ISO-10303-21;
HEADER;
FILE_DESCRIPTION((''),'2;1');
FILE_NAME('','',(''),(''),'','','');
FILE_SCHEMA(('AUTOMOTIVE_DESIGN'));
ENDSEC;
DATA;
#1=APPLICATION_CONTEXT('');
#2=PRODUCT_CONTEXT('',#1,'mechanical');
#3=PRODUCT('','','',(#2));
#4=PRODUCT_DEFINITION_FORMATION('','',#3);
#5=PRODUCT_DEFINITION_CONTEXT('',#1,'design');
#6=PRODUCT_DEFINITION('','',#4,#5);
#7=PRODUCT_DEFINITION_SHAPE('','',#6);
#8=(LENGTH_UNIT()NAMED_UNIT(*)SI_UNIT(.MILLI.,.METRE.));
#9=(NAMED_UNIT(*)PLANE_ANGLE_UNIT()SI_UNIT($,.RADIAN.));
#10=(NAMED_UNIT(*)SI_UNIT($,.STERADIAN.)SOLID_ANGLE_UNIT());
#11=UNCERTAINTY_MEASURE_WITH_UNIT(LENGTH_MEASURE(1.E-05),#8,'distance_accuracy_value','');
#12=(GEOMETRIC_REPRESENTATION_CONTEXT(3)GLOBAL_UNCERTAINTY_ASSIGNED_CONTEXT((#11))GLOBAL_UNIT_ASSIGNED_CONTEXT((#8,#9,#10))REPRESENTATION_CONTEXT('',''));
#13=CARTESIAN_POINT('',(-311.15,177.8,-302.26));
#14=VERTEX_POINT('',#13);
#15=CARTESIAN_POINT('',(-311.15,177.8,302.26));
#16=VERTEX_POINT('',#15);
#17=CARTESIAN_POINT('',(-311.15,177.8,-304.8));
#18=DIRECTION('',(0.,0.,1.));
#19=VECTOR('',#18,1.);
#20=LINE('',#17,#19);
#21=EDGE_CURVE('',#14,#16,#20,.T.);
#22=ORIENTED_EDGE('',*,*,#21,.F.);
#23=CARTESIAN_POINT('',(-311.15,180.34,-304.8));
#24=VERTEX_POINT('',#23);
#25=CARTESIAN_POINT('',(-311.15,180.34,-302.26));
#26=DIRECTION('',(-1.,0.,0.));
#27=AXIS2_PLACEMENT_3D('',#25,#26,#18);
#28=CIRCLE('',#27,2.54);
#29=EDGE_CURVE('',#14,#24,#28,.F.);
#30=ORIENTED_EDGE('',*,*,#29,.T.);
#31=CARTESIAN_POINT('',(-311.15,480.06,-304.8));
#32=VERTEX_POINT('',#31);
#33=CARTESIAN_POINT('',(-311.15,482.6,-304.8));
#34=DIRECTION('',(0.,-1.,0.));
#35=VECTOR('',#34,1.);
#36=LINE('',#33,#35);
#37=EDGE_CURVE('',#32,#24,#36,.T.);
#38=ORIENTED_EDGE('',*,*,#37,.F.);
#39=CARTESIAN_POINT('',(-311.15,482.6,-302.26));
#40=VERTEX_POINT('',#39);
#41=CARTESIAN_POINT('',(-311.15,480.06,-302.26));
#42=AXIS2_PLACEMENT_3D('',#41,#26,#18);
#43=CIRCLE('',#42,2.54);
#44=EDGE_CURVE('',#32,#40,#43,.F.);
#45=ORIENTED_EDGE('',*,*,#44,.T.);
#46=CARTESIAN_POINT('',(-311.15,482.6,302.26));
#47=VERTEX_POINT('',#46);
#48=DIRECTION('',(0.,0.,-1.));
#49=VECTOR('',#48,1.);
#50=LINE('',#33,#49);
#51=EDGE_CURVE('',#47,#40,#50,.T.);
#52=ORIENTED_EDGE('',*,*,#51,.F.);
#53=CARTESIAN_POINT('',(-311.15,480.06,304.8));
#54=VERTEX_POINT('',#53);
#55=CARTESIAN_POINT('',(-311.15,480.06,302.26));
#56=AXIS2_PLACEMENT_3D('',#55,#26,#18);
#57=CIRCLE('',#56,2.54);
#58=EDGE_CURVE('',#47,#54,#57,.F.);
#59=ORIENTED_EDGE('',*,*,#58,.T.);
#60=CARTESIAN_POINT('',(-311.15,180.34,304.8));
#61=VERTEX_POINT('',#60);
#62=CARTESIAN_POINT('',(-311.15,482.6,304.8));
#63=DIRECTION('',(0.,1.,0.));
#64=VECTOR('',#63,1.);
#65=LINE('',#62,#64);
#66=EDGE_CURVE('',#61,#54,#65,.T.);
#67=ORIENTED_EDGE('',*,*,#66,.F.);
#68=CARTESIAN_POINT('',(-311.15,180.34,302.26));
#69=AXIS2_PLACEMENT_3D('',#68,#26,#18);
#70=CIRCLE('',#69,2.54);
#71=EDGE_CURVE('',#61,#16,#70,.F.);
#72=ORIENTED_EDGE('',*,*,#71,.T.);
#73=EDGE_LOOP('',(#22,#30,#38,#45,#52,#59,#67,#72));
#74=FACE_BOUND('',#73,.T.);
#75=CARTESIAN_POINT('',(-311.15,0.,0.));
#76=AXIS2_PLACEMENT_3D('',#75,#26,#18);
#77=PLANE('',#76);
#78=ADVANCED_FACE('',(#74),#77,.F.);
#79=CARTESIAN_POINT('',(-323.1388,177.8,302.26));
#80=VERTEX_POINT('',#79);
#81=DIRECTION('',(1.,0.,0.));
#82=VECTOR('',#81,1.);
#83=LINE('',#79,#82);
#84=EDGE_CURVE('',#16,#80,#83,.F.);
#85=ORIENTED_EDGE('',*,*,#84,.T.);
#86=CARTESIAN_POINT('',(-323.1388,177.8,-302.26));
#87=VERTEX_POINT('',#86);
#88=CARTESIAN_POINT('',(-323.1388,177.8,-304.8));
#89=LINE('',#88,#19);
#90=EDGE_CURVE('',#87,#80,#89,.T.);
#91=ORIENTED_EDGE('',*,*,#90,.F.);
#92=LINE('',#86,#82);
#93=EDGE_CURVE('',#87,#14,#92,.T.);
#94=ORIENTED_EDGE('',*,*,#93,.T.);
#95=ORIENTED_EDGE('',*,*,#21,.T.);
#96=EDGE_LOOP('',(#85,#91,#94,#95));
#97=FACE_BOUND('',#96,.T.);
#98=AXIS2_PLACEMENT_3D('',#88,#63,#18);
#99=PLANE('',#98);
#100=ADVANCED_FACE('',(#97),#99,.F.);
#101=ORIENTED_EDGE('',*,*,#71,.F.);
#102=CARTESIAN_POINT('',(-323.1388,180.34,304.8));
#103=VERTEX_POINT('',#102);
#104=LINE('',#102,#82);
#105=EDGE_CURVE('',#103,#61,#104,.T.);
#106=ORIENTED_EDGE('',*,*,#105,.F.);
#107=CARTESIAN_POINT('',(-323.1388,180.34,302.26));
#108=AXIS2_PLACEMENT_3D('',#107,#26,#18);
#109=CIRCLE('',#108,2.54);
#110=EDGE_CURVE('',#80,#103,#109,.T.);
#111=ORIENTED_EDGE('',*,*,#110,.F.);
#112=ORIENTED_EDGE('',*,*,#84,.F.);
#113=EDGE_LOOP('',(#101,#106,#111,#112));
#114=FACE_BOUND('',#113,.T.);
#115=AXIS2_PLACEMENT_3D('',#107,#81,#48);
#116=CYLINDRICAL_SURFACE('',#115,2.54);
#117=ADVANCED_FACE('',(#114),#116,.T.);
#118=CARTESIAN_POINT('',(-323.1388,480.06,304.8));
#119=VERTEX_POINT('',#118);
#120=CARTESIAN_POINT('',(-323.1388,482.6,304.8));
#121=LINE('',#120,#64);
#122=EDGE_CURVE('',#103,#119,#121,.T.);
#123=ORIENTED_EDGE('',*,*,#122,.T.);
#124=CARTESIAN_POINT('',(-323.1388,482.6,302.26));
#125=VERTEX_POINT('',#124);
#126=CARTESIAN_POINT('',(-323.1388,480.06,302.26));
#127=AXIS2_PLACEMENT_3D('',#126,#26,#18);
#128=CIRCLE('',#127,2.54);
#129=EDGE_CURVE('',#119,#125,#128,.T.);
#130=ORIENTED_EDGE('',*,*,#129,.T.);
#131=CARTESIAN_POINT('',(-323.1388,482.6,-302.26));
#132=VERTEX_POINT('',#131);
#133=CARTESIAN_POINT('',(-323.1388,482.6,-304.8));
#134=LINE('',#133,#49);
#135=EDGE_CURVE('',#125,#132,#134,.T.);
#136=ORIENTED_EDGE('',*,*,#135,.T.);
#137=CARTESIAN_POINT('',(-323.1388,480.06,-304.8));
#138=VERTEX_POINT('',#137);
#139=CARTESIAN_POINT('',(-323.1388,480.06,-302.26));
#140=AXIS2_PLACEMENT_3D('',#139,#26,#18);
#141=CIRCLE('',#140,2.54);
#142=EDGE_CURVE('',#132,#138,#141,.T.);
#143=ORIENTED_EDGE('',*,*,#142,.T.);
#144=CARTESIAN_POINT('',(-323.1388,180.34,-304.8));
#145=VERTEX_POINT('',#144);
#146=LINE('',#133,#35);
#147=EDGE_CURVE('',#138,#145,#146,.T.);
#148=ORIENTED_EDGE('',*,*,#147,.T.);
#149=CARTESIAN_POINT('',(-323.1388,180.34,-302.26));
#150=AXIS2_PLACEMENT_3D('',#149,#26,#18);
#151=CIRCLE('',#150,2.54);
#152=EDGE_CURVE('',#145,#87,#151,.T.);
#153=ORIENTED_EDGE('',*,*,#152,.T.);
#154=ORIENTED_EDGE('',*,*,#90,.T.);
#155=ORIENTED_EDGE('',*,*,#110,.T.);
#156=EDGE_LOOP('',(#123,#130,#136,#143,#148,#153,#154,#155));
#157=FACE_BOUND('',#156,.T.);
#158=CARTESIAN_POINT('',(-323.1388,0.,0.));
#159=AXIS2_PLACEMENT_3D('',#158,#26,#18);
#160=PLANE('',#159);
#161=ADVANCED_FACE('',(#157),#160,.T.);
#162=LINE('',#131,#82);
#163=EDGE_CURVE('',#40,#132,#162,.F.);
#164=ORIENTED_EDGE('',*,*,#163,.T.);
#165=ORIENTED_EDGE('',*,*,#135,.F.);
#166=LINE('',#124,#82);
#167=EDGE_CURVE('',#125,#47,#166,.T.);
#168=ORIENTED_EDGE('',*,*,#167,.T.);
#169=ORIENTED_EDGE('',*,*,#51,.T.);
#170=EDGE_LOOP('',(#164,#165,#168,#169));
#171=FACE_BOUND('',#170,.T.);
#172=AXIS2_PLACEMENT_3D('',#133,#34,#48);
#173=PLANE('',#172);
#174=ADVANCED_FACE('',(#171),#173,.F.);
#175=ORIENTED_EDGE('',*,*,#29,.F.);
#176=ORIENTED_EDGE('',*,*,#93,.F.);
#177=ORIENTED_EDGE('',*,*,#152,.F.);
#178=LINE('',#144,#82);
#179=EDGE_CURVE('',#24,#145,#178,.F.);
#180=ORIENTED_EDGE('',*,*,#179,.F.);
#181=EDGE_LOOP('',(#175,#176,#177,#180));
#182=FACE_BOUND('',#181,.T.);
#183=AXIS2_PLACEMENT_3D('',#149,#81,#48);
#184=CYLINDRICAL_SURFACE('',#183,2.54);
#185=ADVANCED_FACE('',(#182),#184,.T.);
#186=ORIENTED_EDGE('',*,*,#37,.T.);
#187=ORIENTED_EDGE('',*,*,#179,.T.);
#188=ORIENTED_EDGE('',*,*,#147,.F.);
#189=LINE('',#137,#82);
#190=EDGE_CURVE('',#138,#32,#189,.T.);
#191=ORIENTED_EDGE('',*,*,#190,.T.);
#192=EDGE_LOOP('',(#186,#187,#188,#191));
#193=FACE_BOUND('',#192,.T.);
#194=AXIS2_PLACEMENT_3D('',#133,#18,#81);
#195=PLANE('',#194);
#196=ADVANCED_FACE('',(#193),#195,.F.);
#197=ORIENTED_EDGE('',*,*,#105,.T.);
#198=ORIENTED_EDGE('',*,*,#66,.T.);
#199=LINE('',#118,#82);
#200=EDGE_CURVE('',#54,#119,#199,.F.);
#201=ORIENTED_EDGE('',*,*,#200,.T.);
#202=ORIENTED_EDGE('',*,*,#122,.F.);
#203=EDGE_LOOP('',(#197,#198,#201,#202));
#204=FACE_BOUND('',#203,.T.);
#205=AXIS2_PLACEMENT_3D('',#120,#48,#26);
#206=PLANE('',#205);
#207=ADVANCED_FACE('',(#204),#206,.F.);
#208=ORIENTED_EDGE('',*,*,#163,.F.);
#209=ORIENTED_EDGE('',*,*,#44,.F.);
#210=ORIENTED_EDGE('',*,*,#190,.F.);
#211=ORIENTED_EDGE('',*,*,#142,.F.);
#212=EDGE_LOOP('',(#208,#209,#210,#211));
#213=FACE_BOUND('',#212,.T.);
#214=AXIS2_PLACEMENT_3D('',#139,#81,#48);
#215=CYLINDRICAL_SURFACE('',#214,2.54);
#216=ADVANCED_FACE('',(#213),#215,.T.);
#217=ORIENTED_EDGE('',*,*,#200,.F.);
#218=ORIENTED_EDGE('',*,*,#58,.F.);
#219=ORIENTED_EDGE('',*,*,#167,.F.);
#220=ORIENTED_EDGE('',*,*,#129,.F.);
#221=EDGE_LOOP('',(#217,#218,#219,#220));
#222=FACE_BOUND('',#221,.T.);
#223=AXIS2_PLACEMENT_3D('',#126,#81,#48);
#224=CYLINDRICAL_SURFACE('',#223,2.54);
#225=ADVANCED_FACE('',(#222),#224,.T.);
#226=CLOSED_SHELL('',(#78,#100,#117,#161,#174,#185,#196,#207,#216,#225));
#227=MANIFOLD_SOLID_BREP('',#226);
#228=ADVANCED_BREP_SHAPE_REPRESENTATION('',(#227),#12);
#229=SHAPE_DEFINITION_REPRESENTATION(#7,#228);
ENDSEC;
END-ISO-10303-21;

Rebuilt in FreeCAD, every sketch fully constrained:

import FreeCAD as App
import Part
import Sketcher
from FreeCAD import Vector
Q = App.Units.Quantity


def edges_at(feature, points):
    """Names of the edges that pass closest to the given points."""
    edges = feature.Shape.Edges
    near = lambda p: min(range(len(edges)), key=lambda i: edges[i].distToShape(Part.Vertex(*p))[0])
    return sorted({f"Edge{near(p) + 1}" for p in points})

doc = App.newDocument("Part")
body = doc.addObject("PartDesign::Body", "Body")

# Sketch on YZ plane
sketch1 = body.newObject("Sketcher::SketchObject", "Sketch")
sketch1.AttachmentSupport = (doc.getObject("YZ_Plane"), [""])
sketch1.MapMode = "FlatFace"
sketch1.AttachmentOffset = App.Placement(Vector(0, 0, -12.25 * 25.4), App.Rotation())
sketch1.addGeometry([
    Part.LineSegment(Vector(483, -305, 0), Vector(178, -305, 0)),
    Part.LineSegment(Vector(178, -305, 0), Vector(178, 305, 0)),
    Part.LineSegment(Vector(178, 305, 0), Vector(483, 305, 0)),
    Part.LineSegment(Vector(483, 305, 0), Vector(483, -305, 0)),
], False)
sketch1.addConstraint([
    Sketcher.Constraint("Coincident", 0, 2, 1, 1),
    Sketcher.Constraint("Coincident", 1, 2, 2, 1),
    Sketcher.Constraint("Coincident", 2, 2, 3, 1),
    Sketcher.Constraint("Coincident", 3, 2, 0, 1),
    Sketcher.Constraint("Horizontal", 0),
    Sketcher.Constraint("Vertical", 1),
    Sketcher.Constraint("Horizontal", 2),
    Sketcher.Constraint("Vertical", 3),
    Sketcher.Constraint("DistanceX", 0, 2, 0, 1, Q("12 in")),
    Sketcher.Constraint("DistanceY", 1, 1, 1, 2, Q("24 in")),
    Sketcher.Constraint("DistanceX", -1, 1, 0, 2, Q("7 in")),
    Sketcher.Constraint("DistanceY", 0, 2, -1, 1, Q("12 in")),
])
pad1 = body.newObject("PartDesign::Pad", "Pad")
pad1.Profile = sketch1
pad1.Length = Q("0.472 in")
pad1.Reversed = True
doc.recompute()

fillet = body.newObject("PartDesign::Fillet", "Fillet")
fillet.Base = (pad1, edges_at(pad1, [
    (-317.144, 482.6, -304.8),
    (-317.144, 482.6, 304.8),
    (-317.144, 177.8, 304.8),
    (-317.144, 177.8, -304.8),
]))
fillet.Radius = Q("0.1 in")

doc.recompute()
